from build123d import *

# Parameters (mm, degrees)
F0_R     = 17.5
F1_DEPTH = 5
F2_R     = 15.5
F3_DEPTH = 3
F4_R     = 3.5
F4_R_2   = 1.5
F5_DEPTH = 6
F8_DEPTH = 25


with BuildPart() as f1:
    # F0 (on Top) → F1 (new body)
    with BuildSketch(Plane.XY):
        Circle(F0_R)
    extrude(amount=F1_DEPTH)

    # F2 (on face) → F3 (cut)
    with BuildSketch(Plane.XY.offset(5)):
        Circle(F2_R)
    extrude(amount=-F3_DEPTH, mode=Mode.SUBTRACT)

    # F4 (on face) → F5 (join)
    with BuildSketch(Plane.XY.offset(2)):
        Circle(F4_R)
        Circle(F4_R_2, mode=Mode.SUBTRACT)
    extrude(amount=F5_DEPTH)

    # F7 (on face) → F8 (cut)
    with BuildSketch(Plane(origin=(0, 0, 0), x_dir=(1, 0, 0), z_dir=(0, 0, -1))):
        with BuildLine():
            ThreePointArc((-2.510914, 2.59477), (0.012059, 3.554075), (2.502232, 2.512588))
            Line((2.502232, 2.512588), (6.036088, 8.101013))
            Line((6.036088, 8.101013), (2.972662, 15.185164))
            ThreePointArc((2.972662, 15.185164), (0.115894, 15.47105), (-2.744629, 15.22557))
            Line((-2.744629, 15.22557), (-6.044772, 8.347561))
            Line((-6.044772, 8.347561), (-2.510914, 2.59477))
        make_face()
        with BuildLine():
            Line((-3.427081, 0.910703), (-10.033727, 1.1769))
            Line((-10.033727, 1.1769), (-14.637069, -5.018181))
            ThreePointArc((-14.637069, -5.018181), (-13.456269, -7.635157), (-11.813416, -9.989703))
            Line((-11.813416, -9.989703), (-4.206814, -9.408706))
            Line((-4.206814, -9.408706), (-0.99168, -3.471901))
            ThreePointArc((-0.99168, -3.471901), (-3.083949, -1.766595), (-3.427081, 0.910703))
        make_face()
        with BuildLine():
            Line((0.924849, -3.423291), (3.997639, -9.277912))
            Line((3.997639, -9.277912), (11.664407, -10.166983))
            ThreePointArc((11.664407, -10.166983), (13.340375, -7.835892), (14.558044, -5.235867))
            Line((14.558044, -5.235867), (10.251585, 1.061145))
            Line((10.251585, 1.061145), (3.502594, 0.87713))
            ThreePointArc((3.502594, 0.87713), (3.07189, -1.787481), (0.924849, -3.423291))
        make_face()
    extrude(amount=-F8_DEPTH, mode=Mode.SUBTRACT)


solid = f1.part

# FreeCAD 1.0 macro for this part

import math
import FreeCAD as App
import Part
import Sketcher
from FreeCAD import Vector
Q = App.Units.Quantity

doc = App.newDocument("Part")
params = doc.addObject("Spreadsheet::Sheet", "Params")
for row, (alias, value) in enumerate([
    ("sketch1_diameter", "35 mm"),
    ("pad1_length", "5 mm"),
    ("sketch2_diameter", "31 mm"),
    ("pocket1_length", "3 mm"),
    ("sketch3_diameter", "7 mm"),
    ("sketch3_diameter2", "3 mm"),
    ("pad2_length", "6 mm"),
    ("pocket2_length", "25 mm"),
], start=1):
    params.set(f"A{row}", alias)
    params.set(f"B{row}", "=" + value)
    params.setAlias(f"B{row}", alias)

body = doc.addObject("PartDesign::Body", "Body")

# Sketch on XY plane
sketch1 = body.newObject("Sketcher::SketchObject", "Sketch")
sketch1.AttachmentSupport = (doc.getObject("XY_Plane"), [""])
sketch1.MapMode = "FlatFace"
sketch1.addGeometry(Part.Circle(Vector(0, 0, 0), Vector(0, 0, 1), 18), False)
sketch1.addConstraint([
    Sketcher.Constraint("Coincident", 0, 3, -1, 1),
    Sketcher.Constraint("Diameter", 0, Q("35 mm")),
])
sketch1.setExpression("Constraints[1]", "Params.sketch1_diameter")
pad1 = body.newObject("PartDesign::Pad", "Pad")
pad1.Profile = sketch1
pad1.setExpression("Length", "Params.pad1_length")

# Sketch on XY plane
sketch2 = body.newObject("Sketcher::SketchObject", "Sketch001")
sketch2.AttachmentSupport = (doc.getObject("XY_Plane"), [""])
sketch2.MapMode = "FlatFace"
sketch2.AttachmentOffset = App.Placement(Vector(0, 0, 5), App.Rotation())
sketch2.addGeometry(Part.Circle(Vector(0, 0, 0), Vector(0, 0, 1), 16), False)
sketch2.addConstraint([
    Sketcher.Constraint("Coincident", 0, 3, -1, 1),
    Sketcher.Constraint("Diameter", 0, Q("31 mm")),
])
sketch2.setExpression("Constraints[1]", "Params.sketch2_diameter")
pocket1 = body.newObject("PartDesign::Pocket", "Pocket")
pocket1.Profile = sketch2
pocket1.setExpression("Length", "Params.pocket1_length")

# Sketch on XY plane
sketch3 = body.newObject("Sketcher::SketchObject", "Sketch002")
sketch3.AttachmentSupport = (doc.getObject("XY_Plane"), [""])
sketch3.MapMode = "FlatFace"
sketch3.AttachmentOffset = App.Placement(Vector(0, 0, 2), App.Rotation())
sketch3.addGeometry([
    Part.Circle(Vector(0, 0, 0), Vector(0, 0, 1), 3.5),
    Part.Circle(Vector(0, 0, 0), Vector(0, 0, 1), 1.5),
], False)
sketch3.addConstraint([
    Sketcher.Constraint("Coincident", 0, 3, -1, 1),
    Sketcher.Constraint("Coincident", 1, 3, -1, 1),
    Sketcher.Constraint("Diameter", 0, Q("7 mm")),
    Sketcher.Constraint("Diameter", 1, Q("3 mm")),
])
sketch3.setExpression("Constraints[2]", "Params.sketch3_diameter")
sketch3.setExpression("Constraints[3]", "Params.sketch3_diameter2")
pad2 = body.newObject("PartDesign::Pad", "Pad001")
pad2.Profile = sketch3
pad2.setExpression("Length", "Params.pad2_length")

# Sketch on XY plane
sketch4 = body.newObject("Sketcher::SketchObject", "Sketch003")
sketch4.AttachmentSupport = (doc.getObject("XY_Plane"), [""])
sketch4.MapMode = "FlatFace"
sketch4.addGeometry([
    Part.ArcOfCircle(Part.Circle(Vector(0, 0.1, 0), Vector(0, 0, 1), 3.6), math.radians(-133), math.radians(-46)),  # 0
    Part.LineSegment(Vector(2.5, -2.5, 0), Vector(6, -8.1, 0)),  # 1
    Part.LineSegment(Vector(6, -8.1, 0), Vector(3, -15.2, 0)),  # 2
    Part.ArcOfCircle(Part.Circle(Vector(0, 0, 0), Vector(0, 0, 1), 15.5), math.radians(-100), math.radians(-79)),  # 3
    Part.LineSegment(Vector(-2.7, -15.2, 0), Vector(-6, -8.3, 0)),  # 4
    Part.LineSegment(Vector(-6, -8.3, 0), Vector(-2.5, -2.6, 0)),  # 5
    Part.LineSegment(Vector(-3.4, -0.9, 0), Vector(-10, -1.2, 0)),  # 6
    Part.LineSegment(Vector(-10, -1.2, 0), Vector(-14.6, 5, 0)),  # 7
    Part.ArcOfCircle(Part.Circle(Vector(0, 0, 0), Vector(0, 0, 1), 15.5), math.radians(140), math.radians(161)),  # 8
    Part.LineSegment(Vector(-11.8, 10, 0), Vector(-4.2, 9.4, 0)),  # 9
    Part.LineSegment(Vector(-4.2, 9.4, 0), Vector(-1, 3.5, 0)),  # 10
    Part.ArcOfCircle(Part.Circle(Vector(0.1, 0, 0), Vector(0, 0, 1), 3.6), math.radians(107), math.radians(194)),  # 11
    Part.LineSegment(Vector(0.9, 3.4, 0), Vector(4, 9.3, 0)),  # 12
    Part.LineSegment(Vector(4, 9.3, 0), Vector(11.7, 10.2, 0)),  # 13
    Part.ArcOfCircle(Part.Circle(Vector(0, 0, 0), Vector(0, 0, 1), 15.5), math.radians(20), math.radians(41)),  # 14
    Part.LineSegment(Vector(14.6, 5.2, 0), Vector(10.3, -1.1, 0)),  # 15
    Part.LineSegment(Vector(10.3, -1.1, 0), Vector(3.5, -0.9, 0)),  # 16
    Part.ArcOfCircle(Part.Circle(Vector(-0.1, -0.1, 0), Vector(0, 0, 1), 3.6), math.radians(-13), math.radians(74)),  # 17
], False)
sketch4.addConstraint([
    Sketcher.Constraint("Coincident", 0, 2, 1, 1),
    Sketcher.Constraint("Coincident", 1, 2, 2, 1),
    Sketcher.Constraint("Coincident", 2, 2, 3, 2),
    Sketcher.Constraint("Coincident", 3, 1, 4, 1),
    Sketcher.Constraint("Coincident", 4, 2, 5, 1),
    Sketcher.Constraint("Coincident", 5, 2, 0, 1),
    Sketcher.Constraint("Coincident", 6, 2, 7, 1),
    Sketcher.Constraint("Coincident", 7, 2, 8, 2),
    Sketcher.Constraint("Coincident", 8, 1, 9, 1),
    Sketcher.Constraint("Coincident", 9, 2, 10, 1),
    Sketcher.Constraint("Coincident", 10, 2, 11, 1),
    Sketcher.Constraint("Coincident", 11, 2, 6, 1),
    Sketcher.Constraint("Coincident", 12, 2, 13, 1),
    Sketcher.Constraint("Coincident", 13, 2, 14, 2),
    Sketcher.Constraint("Coincident", 14, 1, 15, 1),
    Sketcher.Constraint("Coincident", 15, 2, 16, 1),
    Sketcher.Constraint("Coincident", 16, 2, 17, 1),
    Sketcher.Constraint("Coincident", 17, 2, 12, 1),
    Sketcher.Constraint("Equal", 0, 11),
    Sketcher.Constraint("Equal", 11, 17),
    Sketcher.Constraint("Equal", 1, 6),
    Sketcher.Constraint("Equal", 2, 7),
    Sketcher.Constraint("Equal", 4, 9),
    Sketcher.Constraint("Equal", 5, 10),
    Sketcher.Constraint("Equal", 6, 12),
    Sketcher.Constraint("Equal", 7, 13),
    Sketcher.Constraint("Equal", 9, 15),
    Sketcher.Constraint("Equal", 10, 16),
    Sketcher.Constraint("Radius", 17, Q("3.640898 mm")),
    Sketcher.Constraint("Radius", 3, Q("15.512184 mm")),
    Sketcher.Constraint("Radius", 8, Q("15.512223 mm")),
    Sketcher.Constraint("Radius", 14, Q("15.512193 mm")),
    Sketcher.Constraint("DistanceX", 9, 2, 8, 3, Q("4.239002 mm")),
    Sketcher.Constraint("Distance", 5, Q("6.7515 mm")),
    Sketcher.Constraint("DistanceY", 6, 2, -1, 1, Q("1.1769 mm")),
    Sketcher.Constraint("DistanceY", -1, 1, 10, 2, Q("3.471901 mm")),
    Sketcher.Constraint("DistanceX", 8, 3, 1, 2, Q("6.0039 mm")),
    Sketcher.Constraint("DistanceX", 3, 1, 14, 3, Q("2.706199 mm")),
    Sketcher.Constraint("DistanceX", 5, 2, 8, 3, Q("2.543102 mm")),
    Sketcher.Constraint("DistanceX", 8, 1, 9, 2, Q("7.606602 mm")),
    Sketcher.Constraint("Distance", 4, Q("7.628758 mm")),
    Sketcher.Constraint("DistanceX", 0, 3, -1, 1, Q("0.04762 mm")),
    Sketcher.Constraint("DistanceY", 8, 3, -1, 1, Q("0.025821 mm")),
    Sketcher.Constraint("DistanceX", 14, 3, -1, 1, Q("0.03843 mm")),
    Sketcher.Constraint("DistanceY", 14, 3, -1, 1, Q("0.014948 mm")),
    Sketcher.Constraint("DistanceX", -1, 1, 0, 2, Q("2.502232 mm")),
    Sketcher.Constraint("DistanceX", -1, 1, 1, 2, Q("6.036088 mm")),
    Sketcher.Constraint("DistanceY", 3, 1, -1, 1, Q("15.22557 mm")),
    Sketcher.Constraint("DistanceY", 4, 2, -1, 1, Q("8.347561 mm")),
    Sketcher.Constraint("DistanceX", 7, 2, -1, 1, Q("14.637069 mm")),
    Sketcher.Constraint("DistanceX", 11, 2, -1, 1, Q("3.427081 mm")),
    Sketcher.Constraint("DistanceX", -1, 1, 12, 2, Q("3.997639 mm")),
    Sketcher.Constraint("DistanceY", 16, 2, -1, 1, Q("0.87713 mm")),
    Sketcher.Constraint("DistanceX", -1, 1, 17, 2, Q("0.924849 mm")),
    Sketcher.Constraint("DistanceY", -1, 1, 17, 2, Q("3.423291 mm")),
    Sketcher.Constraint("DistanceX", 3, 3, 8, 3, Q("0.025921 mm")),
    Sketcher.Constraint("DistanceX", 8, 3, 11, 3, Q("0.066388 mm")),
    Sketcher.Constraint("DistanceY", 17, 3, 14, 3, Q("0.069458 mm")),
    Sketcher.Constraint("DistanceY", 1, 2, 8, 3, Q("8.075192 mm")),
    Sketcher.Constraint("DistanceX", 0, 2, 14, 1, Q("12.055812 mm")),
])
pocket2 = body.newObject("PartDesign::Pocket", "Pocket001")
pocket2.Profile = sketch4
pocket2.setExpression("Length", "Params.pocket2_length")
pocket2.Reversed = True

doc.recompute()
